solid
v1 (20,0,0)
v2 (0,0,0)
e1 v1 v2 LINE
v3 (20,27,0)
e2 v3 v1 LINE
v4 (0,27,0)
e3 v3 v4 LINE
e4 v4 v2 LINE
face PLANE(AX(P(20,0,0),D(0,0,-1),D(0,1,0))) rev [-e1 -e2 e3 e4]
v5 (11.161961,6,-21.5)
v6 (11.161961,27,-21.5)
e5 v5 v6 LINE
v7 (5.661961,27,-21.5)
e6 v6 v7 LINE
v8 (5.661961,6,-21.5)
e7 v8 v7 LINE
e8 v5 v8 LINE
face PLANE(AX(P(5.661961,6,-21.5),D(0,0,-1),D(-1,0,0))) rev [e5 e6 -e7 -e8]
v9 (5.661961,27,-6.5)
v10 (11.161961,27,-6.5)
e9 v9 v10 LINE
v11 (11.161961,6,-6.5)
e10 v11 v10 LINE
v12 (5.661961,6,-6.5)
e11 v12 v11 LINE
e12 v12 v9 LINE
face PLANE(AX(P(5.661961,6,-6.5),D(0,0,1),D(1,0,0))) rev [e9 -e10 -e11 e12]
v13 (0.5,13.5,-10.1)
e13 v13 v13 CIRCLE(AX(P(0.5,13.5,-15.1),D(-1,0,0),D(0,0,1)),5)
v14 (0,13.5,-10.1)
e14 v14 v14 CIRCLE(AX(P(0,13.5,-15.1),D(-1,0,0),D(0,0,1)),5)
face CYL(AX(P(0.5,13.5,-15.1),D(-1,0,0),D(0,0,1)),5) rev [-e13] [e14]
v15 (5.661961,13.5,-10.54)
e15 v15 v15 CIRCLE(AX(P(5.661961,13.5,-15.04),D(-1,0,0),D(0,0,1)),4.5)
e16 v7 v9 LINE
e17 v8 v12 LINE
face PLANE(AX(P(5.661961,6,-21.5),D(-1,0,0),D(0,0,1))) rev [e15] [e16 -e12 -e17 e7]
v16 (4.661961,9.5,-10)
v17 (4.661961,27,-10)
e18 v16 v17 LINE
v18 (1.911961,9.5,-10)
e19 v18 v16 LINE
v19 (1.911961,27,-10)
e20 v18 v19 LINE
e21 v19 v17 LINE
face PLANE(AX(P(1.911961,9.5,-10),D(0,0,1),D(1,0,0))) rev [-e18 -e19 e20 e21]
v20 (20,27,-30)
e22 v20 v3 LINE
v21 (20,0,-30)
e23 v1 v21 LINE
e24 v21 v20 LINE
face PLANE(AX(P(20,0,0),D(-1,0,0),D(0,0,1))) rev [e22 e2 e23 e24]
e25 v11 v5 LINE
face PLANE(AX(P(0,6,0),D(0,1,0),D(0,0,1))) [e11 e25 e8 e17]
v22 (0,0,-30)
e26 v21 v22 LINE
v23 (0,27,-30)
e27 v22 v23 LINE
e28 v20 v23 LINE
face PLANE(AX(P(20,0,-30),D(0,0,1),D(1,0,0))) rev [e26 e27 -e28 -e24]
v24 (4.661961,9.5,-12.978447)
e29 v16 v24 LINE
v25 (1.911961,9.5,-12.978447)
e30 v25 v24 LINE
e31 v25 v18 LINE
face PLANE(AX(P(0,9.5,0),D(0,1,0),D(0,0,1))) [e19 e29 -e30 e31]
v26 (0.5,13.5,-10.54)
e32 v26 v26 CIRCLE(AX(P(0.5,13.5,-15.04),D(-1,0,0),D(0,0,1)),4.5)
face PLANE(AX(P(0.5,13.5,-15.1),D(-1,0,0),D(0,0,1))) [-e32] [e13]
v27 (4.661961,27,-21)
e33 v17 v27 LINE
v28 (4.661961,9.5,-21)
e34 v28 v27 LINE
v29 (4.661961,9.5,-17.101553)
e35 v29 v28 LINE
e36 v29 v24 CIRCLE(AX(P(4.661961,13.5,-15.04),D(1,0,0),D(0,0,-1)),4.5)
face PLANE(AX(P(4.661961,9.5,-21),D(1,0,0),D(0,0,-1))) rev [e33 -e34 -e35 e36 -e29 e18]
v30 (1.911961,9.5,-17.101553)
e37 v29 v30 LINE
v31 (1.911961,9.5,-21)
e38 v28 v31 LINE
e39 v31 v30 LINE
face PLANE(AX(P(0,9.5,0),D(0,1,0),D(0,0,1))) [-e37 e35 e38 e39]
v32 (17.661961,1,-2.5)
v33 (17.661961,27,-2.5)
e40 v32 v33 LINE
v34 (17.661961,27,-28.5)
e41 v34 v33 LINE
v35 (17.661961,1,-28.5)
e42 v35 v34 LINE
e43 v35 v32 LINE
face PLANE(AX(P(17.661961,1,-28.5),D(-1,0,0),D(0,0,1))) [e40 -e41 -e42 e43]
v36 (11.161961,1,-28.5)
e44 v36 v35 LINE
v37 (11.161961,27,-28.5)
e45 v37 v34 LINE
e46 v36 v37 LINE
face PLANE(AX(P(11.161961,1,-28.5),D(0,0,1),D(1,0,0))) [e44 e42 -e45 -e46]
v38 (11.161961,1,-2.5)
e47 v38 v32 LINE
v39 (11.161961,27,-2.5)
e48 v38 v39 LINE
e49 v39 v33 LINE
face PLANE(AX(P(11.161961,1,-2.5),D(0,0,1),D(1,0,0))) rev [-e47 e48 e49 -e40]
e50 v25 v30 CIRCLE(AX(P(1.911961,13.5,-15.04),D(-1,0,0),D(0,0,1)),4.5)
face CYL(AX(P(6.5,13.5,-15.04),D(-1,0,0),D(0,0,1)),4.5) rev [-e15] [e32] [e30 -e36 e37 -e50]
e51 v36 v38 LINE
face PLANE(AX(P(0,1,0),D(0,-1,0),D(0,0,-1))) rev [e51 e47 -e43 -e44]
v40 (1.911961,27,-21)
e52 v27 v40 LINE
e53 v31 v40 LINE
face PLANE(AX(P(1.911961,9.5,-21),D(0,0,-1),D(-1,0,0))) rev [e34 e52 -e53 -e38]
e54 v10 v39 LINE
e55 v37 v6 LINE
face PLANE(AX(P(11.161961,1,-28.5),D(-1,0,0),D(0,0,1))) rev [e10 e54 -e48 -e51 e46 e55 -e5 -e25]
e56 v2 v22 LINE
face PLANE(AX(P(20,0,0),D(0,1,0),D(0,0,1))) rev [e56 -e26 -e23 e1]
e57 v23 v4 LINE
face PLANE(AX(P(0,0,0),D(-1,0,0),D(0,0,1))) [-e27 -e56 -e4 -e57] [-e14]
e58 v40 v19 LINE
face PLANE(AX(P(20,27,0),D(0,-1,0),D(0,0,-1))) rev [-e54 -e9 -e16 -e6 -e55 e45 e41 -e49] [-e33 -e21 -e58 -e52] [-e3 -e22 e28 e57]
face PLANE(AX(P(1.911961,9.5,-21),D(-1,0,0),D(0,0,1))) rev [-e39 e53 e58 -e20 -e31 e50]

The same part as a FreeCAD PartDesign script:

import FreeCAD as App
import Part
import Sketcher


def add_polygon(sketch, points):
    """Adds a closed chain of lines whose ends are joined by coincident constraints."""
    first, n = sketch.GeometryCount, len(points)
    for a, b in zip(points, points[1:] + points[:1]):
        sketch.addGeometry(Part.LineSegment(App.Vector(*a, 0), App.Vector(*b, 0)), False)
    for i in range(n):
        sketch.addConstraint(Sketcher.Constraint("Coincident", first + i, 2, first + (i + 1) % n, 1))

doc = App.newDocument("Part")
body = doc.addObject("PartDesign::Body", "Body")

sketch1 = doc.addObject("Sketcher::SketchObject", "Sketch")
body.addObject(sketch1)
sketch1.AttachmentSupport = (doc.YZ_Plane, [""])
sketch1.MapMode = "FlatFace"
add_polygon(sketch1, [(27, 0), (0, 0), (0, -30), (27, -30)])
sketch1.addConstraint([
    Sketcher.Constraint("Horizontal", 0),
    Sketcher.Constraint("Vertical", 1),
    Sketcher.Constraint("Horizontal", 2),
    Sketcher.Constraint("Vertical", 3),
    Sketcher.Constraint("Coincident", 0, 2, -1, 1),
    Sketcher.Constraint("DistanceX", 0, 2, 0, 1, 27.0),
    Sketcher.Constraint("DistanceY", 1, 2, 1, 1, 30.0),
])
pad1 = doc.addObject("PartDesign::Pad", "Pad")
body.addObject(pad1)
pad1.Profile = sketch1
pad1.Length = 20

sketch2 = doc.addObject("Sketcher::SketchObject", "Sketch001")
body.addObject(sketch2)
sketch2.AttachmentSupport = (doc.XZ_Plane, [""])
sketch2.MapMode = "FlatFace"
sketch2.AttachmentOffset = App.Placement(App.Vector(0, 0, -27), App.Rotation())
add_polygon(sketch2, [(11, -28), (11, -2), (18, -2), (18, -28)])
sketch2.addConstraint([
    Sketcher.Constraint("Vertical", 0),
    Sketcher.Constraint("Horizontal", 1),
    Sketcher.Constraint("Vertical", 2),
    Sketcher.Constraint("Horizontal", 3),
    Sketcher.Constraint("DistanceY", 0, 1, 0, 2, 26.0),
    Sketcher.Constraint("DistanceX", 1, 1, 1, 2, 6.5),
    Sketcher.Constraint("DistanceY", 0, 2, -1, 1, 2.5),
    Sketcher.Constraint("DistanceX", -1, 1, 0, 2, 11.161961),
])
pocket1 = doc.addObject("PartDesign::Pocket", "Pocket")
body.addObject(pocket1)
pocket1.Profile = sketch2
pocket1.Length = 26
pocket1.Reversed = True

sketch3 = doc.addObject("Sketcher::SketchObject", "Sketch002")
body.addObject(sketch3)
sketch3.AttachmentSupport = (doc.XZ_Plane, [""])
sketch3.MapMode = "FlatFace"
sketch3.AttachmentOffset = App.Placement(App.Vector(0, 0, -27), App.Rotation())
add_polygon(sketch3, [(6, -22), (6, -6), (11, -6), (11, -22)])
sketch3.addConstraint([
    Sketcher.Constraint("Vertical", 0),
    Sketcher.Constraint("Horizontal", 1),
    Sketcher.Constraint("Vertical", 2),
    Sketcher.Constraint("Horizontal", 3),
    Sketcher.Constraint("DistanceY", 0, 1, 0, 2, 15.0),
    Sketcher.Constraint("DistanceX", 1, 1, 1, 2, 5.5),
    Sketcher.Constraint("DistanceY", 0, 2, -1, 1, 6.5),
    Sketcher.Constraint("DistanceX", -1, 1, 0, 2, 5.661961),
])
pocket2 = doc.addObject("PartDesign::Pocket", "Pocket001")
body.addObject(pocket2)
pocket2.Profile = sketch3
pocket2.Length = 21
pocket2.Reversed = True

sketch4 = doc.addObject("Sketcher::SketchObject", "Sketch003")
body.addObject(sketch4)
sketch4.AttachmentSupport = (doc.YZ_Plane, [""])
sketch4.MapMode = "FlatFace"
sketch4.addGeometry(Part.Circle(App.Vector(14, -15, 0), App.Vector(0, 0, 1), 5), False)
sketch4.addConstraint([
    Sketcher.Constraint("Diameter", 0, 10.0),
    Sketcher.Constraint("DistanceX", -1, 1, 0, 3, 13.5),
    Sketcher.Constraint("DistanceY", 0, 3, -1, 1, 15.1),
])
pocket3 = doc.addObject("PartDesign::Pocket", "Pocket002")
body.addObject(pocket3)
pocket3.Profile = sketch4
pocket3.Length = 0.5
pocket3.Reversed = True

sketch5 = doc.addObject("Sketcher::SketchObject", "Sketch004")
body.addObject(sketch5)
sketch5.AttachmentSupport = (doc.XZ_Plane, [""])
sketch5.MapMode = "FlatFace"
sketch5.AttachmentOffset = App.Placement(App.Vector(0, 0, -27), App.Rotation())
add_polygon(sketch5, [(1.9, -21), (1.9, -10), (4.7, -10), (4.7, -21)])
sketch5.addConstraint([
    Sketcher.Constraint("Vertical", 0),
    Sketcher.Constraint("Horizontal", 1),
    Sketcher.Constraint("Vertical", 2),
    Sketcher.Constraint("Horizontal", 3),
    Sketcher.Constraint("DistanceY", 0, 1, 0, 2, 11.0),
    Sketcher.Constraint("DistanceY", 0, 2, -1, 1, 10.0),
    Sketcher.Constraint("DistanceX", 1, 1, 1, 2, 2.75),
    Sketcher.Constraint("DistanceX", -1, 1, 0, 2, 1.911961),
])
pocket4 = doc.addObject("PartDesign::Pocket", "Pocket003")
body.addObject(pocket4)
pocket4.Profile = sketch5
pocket4.Length = 17.5
pocket4.Reversed = True

sketch6 = doc.addObject("Sketcher::SketchObject", "Sketch005")
body.addObject(sketch6)
sketch6.AttachmentSupport = (doc.YZ_Plane, [""])
sketch6.MapMode = "FlatFace"
sketch6.AttachmentOffset = App.Placement(App.Vector(0, 0, 0.5), App.Rotation())
sketch6.addGeometry(Part.Circle(App.Vector(13.5, -15, 0), App.Vector(0, 0, 1), 4.5), False)
sketch6.addConstraint([
    Sketcher.Constraint("Diameter", 0, 9.0),
    Sketcher.Constraint("DistanceX", -1, 1, 0, 3, 13.5),
    Sketcher.Constraint("DistanceY", 0, 3, -1, 1, 15.04),
])
pocket5 = doc.addObject("PartDesign::Pocket", "Pocket004")
body.addObject(pocket5)
pocket5.Profile = sketch6
pocket5.Length = 6
pocket5.Reversed = True

doc.recompute()
